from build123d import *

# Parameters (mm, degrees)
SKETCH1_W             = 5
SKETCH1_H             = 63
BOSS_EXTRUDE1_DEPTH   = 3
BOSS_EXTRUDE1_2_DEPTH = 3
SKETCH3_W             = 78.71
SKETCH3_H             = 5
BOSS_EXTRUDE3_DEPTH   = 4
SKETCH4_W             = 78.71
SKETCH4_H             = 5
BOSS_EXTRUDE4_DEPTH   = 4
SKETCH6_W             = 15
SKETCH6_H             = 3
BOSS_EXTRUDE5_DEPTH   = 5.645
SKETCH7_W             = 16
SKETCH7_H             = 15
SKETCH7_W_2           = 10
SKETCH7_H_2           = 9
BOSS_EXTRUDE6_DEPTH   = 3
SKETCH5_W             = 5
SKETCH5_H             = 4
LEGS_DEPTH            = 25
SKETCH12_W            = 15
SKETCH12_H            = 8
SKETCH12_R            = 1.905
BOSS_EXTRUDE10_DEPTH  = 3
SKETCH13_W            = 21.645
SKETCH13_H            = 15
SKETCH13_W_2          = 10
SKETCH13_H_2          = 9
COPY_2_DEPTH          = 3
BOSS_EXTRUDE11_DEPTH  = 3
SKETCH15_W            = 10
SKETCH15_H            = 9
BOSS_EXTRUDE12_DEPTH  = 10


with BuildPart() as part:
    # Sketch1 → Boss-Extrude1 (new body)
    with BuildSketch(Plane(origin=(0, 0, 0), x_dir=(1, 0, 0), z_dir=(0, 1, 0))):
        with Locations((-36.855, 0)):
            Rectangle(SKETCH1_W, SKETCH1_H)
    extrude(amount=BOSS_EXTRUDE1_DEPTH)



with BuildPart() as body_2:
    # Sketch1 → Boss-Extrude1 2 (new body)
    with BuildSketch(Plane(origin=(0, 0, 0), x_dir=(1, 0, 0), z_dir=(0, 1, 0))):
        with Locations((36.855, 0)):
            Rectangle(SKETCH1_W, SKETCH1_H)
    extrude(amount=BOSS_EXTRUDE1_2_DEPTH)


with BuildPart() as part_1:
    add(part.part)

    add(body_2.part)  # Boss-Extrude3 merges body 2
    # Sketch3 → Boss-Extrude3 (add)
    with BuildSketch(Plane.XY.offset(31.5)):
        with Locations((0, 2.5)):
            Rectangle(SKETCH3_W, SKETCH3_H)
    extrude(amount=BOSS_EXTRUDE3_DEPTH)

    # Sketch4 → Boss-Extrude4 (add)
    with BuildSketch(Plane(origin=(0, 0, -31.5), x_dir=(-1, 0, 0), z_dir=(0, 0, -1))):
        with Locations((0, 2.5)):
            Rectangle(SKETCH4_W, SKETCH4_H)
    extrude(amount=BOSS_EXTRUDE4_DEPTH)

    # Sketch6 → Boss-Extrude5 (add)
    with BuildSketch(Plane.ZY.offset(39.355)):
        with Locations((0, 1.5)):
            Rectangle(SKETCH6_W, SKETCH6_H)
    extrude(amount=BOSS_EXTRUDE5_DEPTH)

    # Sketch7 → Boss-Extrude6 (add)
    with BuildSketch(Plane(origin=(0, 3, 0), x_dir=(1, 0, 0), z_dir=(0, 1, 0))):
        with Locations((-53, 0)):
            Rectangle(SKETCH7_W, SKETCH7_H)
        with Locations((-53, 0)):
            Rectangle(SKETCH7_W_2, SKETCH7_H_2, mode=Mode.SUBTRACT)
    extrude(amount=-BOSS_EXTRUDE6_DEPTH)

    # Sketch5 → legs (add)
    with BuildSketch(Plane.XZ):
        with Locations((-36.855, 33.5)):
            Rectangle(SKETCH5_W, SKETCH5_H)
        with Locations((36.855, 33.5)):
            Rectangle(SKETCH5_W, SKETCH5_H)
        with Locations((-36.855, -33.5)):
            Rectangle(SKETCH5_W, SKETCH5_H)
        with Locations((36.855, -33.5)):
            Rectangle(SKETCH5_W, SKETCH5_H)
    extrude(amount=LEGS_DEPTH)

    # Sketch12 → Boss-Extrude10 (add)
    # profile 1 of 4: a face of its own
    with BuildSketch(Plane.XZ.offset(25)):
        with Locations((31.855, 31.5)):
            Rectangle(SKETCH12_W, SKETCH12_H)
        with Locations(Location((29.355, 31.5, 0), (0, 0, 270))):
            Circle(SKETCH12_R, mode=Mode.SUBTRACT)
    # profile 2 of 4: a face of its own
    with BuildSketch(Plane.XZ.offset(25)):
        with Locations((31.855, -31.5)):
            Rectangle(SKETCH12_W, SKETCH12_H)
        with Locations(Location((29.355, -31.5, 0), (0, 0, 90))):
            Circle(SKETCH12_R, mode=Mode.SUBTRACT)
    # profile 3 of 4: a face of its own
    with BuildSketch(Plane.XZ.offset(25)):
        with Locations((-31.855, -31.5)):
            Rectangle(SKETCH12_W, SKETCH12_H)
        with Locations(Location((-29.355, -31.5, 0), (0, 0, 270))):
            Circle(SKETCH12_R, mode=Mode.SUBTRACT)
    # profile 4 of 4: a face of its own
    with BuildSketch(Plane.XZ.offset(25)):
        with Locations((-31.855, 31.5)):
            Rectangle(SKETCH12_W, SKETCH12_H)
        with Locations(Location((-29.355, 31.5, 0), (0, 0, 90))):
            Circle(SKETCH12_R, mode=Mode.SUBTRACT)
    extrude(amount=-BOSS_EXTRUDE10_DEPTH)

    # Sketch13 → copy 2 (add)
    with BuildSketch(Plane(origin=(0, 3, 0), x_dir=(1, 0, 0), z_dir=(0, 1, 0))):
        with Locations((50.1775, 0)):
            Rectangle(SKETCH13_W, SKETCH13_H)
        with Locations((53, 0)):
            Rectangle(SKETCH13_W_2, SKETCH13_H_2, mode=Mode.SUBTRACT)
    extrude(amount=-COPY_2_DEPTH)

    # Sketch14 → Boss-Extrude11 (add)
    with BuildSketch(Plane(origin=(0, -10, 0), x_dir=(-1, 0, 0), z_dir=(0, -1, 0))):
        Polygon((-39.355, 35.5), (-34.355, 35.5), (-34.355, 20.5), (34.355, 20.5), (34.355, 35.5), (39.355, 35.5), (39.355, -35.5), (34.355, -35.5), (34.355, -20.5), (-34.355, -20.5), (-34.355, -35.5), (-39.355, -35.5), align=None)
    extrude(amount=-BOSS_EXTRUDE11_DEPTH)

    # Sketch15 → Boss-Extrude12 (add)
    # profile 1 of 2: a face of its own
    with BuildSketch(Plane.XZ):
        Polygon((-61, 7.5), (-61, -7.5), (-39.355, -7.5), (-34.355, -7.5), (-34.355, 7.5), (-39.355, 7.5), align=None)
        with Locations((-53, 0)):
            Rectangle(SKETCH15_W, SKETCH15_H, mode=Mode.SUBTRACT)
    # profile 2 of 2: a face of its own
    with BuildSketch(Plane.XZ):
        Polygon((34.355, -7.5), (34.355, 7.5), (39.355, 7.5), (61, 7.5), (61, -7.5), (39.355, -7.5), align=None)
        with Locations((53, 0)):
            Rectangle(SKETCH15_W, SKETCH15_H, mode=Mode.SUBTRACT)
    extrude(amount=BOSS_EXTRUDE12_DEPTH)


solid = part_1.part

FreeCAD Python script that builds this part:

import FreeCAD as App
import Part
import Sketcher
Q = App.Units.Quantity


def add_polygon(sketch, points):
    """Adds a closed chain of lines whose ends are joined by coincident constraints."""
    first, n = sketch.GeometryCount, len(points)
    for a, b in zip(points, points[1:] + points[:1]):
        sketch.addGeometry(Part.LineSegment(App.Vector(*a, 0), App.Vector(*b, 0)), False)
    for i in range(n):
        sketch.addConstraint(Sketcher.Constraint("Coincident", first + i, 2, first + (i + 1) % n, 1))

doc = App.newDocument("Part")
params = doc.addObject("Spreadsheet::Sheet", "Params")
for row, (alias, value) in enumerate([
    ("sketch1_width", "5 mm"),
    ("sketch1_height", "63 mm"),
    ("pad1_length", "3 mm"),
    ("sketch2_width", "5 mm"),
    ("sketch2_height", "63 mm"),
    ("pad2_length", "3 mm"),
    ("sketch3_height", "5 mm"),
    ("sketch3_width", "78.71 mm"),
    ("pad3_length", "4 mm"),
    ("sketch4_height", "5 mm"),
    ("sketch4_width", "78.71 mm"),
    ("pad4_length", "4 mm"),
    ("sketch5_width", "3 mm"),
    ("sketch5_height", "15 mm"),
    ("pad5_length", "5.645 mm"),
    ("sketch6_width", "16 mm"),
    ("sketch6_width2", "10 mm"),
    ("sketch6_height", "15 mm"),
    ("sketch6_height2", "9 mm"),
    ("pad6_length", "3 mm"),
    ("sketch7_width", "5 mm"),
    ("sketch7_height", "4 mm"),
    ("pad7_length", "25 mm"),
    ("sketch8_diameter", "3.81 mm"),
    ("sketch8_width", "15 mm"),
    ("sketch8_height", "8 mm"),
    ("pad8_length", "3 mm"),
    ("sketch9_width", "10 mm"),
    ("sketch9_height", "15 mm"),
    ("sketch9_height2", "9 mm"),
    ("pad9_length", "3 mm"),
    ("sketch10_width", "5 mm"),
    ("sketch10_height", "71 mm"),
    ("sketch10_height2", "15 mm"),
    ("sketch10_width2", "68.71 mm"),
    ("pad10_length", "3 mm"),
    ("sketch11_width", "10 mm"),
    ("sketch11_height", "15 mm"),
    ("sketch11_height2", "9 mm"),
    ("pad11_length", "10 mm"),
], start=1):
    params.set(f"A{row}", alias)
    params.set(f"B{row}", "=" + value)
    params.setAlias(f"B{row}", alias)

body = doc.addObject("PartDesign::Body", "Body")

# Sketch on XZ plane
sketch1 = body.newObject("Sketcher::SketchObject", "Sketch")
sketch1.AttachmentSupport = (doc.getObject("XZ_Plane"), [""])
sketch1.MapMode = "FlatFace"
add_polygon(sketch1, [(-39, -32), (-39, 32), (-34, 32), (-34, -32)])  # lines 0-3
sketch1.addConstraint([
    Sketcher.Constraint("Vertical", 0),
    Sketcher.Constraint("Horizontal", 1),
    Sketcher.Constraint("Vertical", 2),
    Sketcher.Constraint("Horizontal", 3),
    Sketcher.Constraint("DistanceX", 1, 1, 1, 2, Q("5 mm")),
    Sketcher.Constraint("DistanceY", 0, 1, 0, 2, Q("63 mm")),
    Sketcher.Constraint("DistanceY", -1, 1, 0, 2, Q("31.5 mm")),
    Sketcher.Constraint("DistanceX", 0, 2, -1, 1, Q("39.355 mm")),
])
sketch1.setExpression("Constraints[8]", "Params.sketch1_width")
sketch1.setExpression("Constraints[9]", "Params.sketch1_height")
pad1 = body.newObject("PartDesign::Pad", "Pad")
pad1.Profile = sketch1
pad1.setExpression("Length", "Params.pad1_length")
pad1.Reversed = True
body2 = doc.addObject("PartDesign::Body", "Body001")

# Sketch on XZ plane
sketch2 = body2.newObject("Sketcher::SketchObject", "Sketch001")
sketch2.AttachmentSupport = (doc.getObject("XZ_Plane001"), [""])
sketch2.MapMode = "FlatFace"
add_polygon(sketch2, [(34, -32), (34, 32), (39, 32), (39, -32)])  # lines 0-3
sketch2.addConstraint([
    Sketcher.Constraint("Vertical", 0),
    Sketcher.Constraint("Horizontal", 1),
    Sketcher.Constraint("Vertical", 2),
    Sketcher.Constraint("Horizontal", 3),
    Sketcher.Constraint("DistanceX", 1, 1, 1, 2, Q("5 mm")),
    Sketcher.Constraint("DistanceY", 0, 1, 0, 2, Q("63 mm")),
    Sketcher.Constraint("DistanceY", -1, 1, 0, 2, Q("31.5 mm")),
    Sketcher.Constraint("DistanceX", -1, 1, 0, 2, Q("34.355 mm")),
])
sketch2.setExpression("Constraints[8]", "Params.sketch2_width")
sketch2.setExpression("Constraints[9]", "Params.sketch2_height")
pad2 = body2.newObject("PartDesign::Pad", "Pad001")
pad2.Profile = sketch2
pad2.setExpression("Length", "Params.pad2_length")
pad2.Reversed = True
body.AllowCompound = True
doc.recompute()

boolean = body.newObject("PartDesign::Boolean", "Boolean")
boolean.Type = "Fuse"
boolean.addObjects([body2])

# Sketch on XY plane
sketch3 = body.newObject("Sketcher::SketchObject", "Sketch002")
sketch3.AttachmentSupport = (doc.getObject("XY_Plane"), [""])
sketch3.MapMode = "FlatFace"
sketch3.AttachmentOffset = App.Placement(App.Vector(0, 0, 31.5), App.Rotation())
add_polygon(sketch3, [(-39, 5), (-39, 0), (39, 0), (39, 5)])  # lines 0-3
sketch3.addConstraint([
    Sketcher.Constraint("Vertical", 0),
    Sketcher.Constraint("Horizontal", 1),
    Sketcher.Constraint("Vertical", 2),
    Sketcher.Constraint("Horizontal", 3),
    Sketcher.Constraint("Symmetric", 0, 2, 1, 2, -1, 1),
    Sketcher.Constraint("DistanceY", 0, 2, 0, 1, Q("5 mm")),
    Sketcher.Constraint("DistanceX", 1, 1, 1, 2, Q("78.71 mm")),
])
sketch3.setExpression("Constraints[9]", "Params.sketch3_height")
sketch3.setExpression("Constraints[10]", "Params.sketch3_width")
pad3 = body.newObject("PartDesign::Pad", "Pad002")
pad3.Profile = sketch3
pad3.setExpression("Length", "Params.pad3_length")

# Sketch on XY plane
sketch4 = body.newObject("Sketcher::SketchObject", "Sketch003")
sketch4.AttachmentSupport = (doc.getObject("XY_Plane"), [""])
sketch4.MapMode = "FlatFace"
sketch4.AttachmentOffset = App.Placement(App.Vector(0, 0, -31.5), App.Rotation())
add_polygon(sketch4, [(39, 5), (39, 0), (-39, 0), (-39, 5)])  # lines 0-3
sketch4.addConstraint([
    Sketcher.Constraint("Vertical", 0),
    Sketcher.Constraint("Horizontal", 1),
    Sketcher.Constraint("Vertical", 2),
    Sketcher.Constraint("Horizontal", 3),
    Sketcher.Constraint("Symmetric", 0, 2, 1, 2, -1, 1),
    Sketcher.Constraint("DistanceY", 0, 2, 0, 1, Q("5 mm")),
    Sketcher.Constraint("DistanceX", 1, 2, 1, 1, Q("78.71 mm")),
])
sketch4.setExpression("Constraints[9]", "Params.sketch4_height")
sketch4.setExpression("Constraints[10]", "Params.sketch4_width")
pad4 = body.newObject("PartDesign::Pad", "Pad003")
pad4.Profile = sketch4
pad4.setExpression("Length", "Params.pad4_length")
pad4.Reversed = True

# Sketch on YZ plane
sketch5 = body.newObject("Sketcher::SketchObject", "Sketch004")
sketch5.AttachmentSupport = (doc.getObject("YZ_Plane"), [""])
sketch5.MapMode = "FlatFace"
sketch5.AttachmentOffset = App.Placement(App.Vector(0, 0, -39.355), App.Rotation())
add_polygon(sketch5, [(3, -7.5), (0, -7.5), (0, 7.5), (3, 7.5)])  # lines 0-3
sketch5.addConstraint([
    Sketcher.Constraint("Horizontal", 0),
    Sketcher.Constraint("Vertical", 1),
    Sketcher.Constraint("Horizontal", 2),
    Sketcher.Constraint("Vertical", 3),
    Sketcher.Constraint("Symmetric", 0, 2, 1, 2, -1, 1),
    Sketcher.Constraint("DistanceX", 0, 2, 0, 1, Q("3 mm")),
    Sketcher.Constraint("DistanceY", 1, 1, 1, 2, Q("15 mm")),
])
sketch5.setExpression("Constraints[9]", "Params.sketch5_width")
sketch5.setExpression("Constraints[10]", "Params.sketch5_height")
pad5 = body.newObject("PartDesign::Pad", "Pad004")
pad5.Profile = sketch5
pad5.setExpression("Length", "Params.pad5_length")
pad5.Reversed = True

# Sketch on XZ plane
sketch6 = body.newObject("Sketcher::SketchObject", "Sketch005")
sketch6.AttachmentSupport = (doc.getObject("XZ_Plane"), [""])
sketch6.MapMode = "FlatFace"
sketch6.AttachmentOffset = App.Placement(App.Vector(0, 0, -3), App.Rotation())
add_polygon(sketch6, [(-61, -8), (-61, 8), (-45, 8), (-45, -8)])  # lines 0-3
add_polygon(sketch6, [(-48, 4), (-58, 4), (-58, -4), (-48, -4)])  # lines 4-7
sketch6.addConstraint([
    Sketcher.Constraint("Vertical", 0),
    Sketcher.Constraint("Horizontal", 1),
    Sketcher.Constraint("Vertical", 2),
    Sketcher.Constraint("Horizontal", 3),
    Sketcher.Constraint("Horizontal", 4),
    Sketcher.Constraint("Vertical", 5),
    Sketcher.Constraint("Horizontal", 6),
    Sketcher.Constraint("Vertical", 7),
    Sketcher.Constraint("DistanceX", 1, 1, 1, 2, Q("16 mm")),
    Sketcher.Constraint("DistanceX", 4, 2, 4, 1, Q("10 mm")),
    Sketcher.Constraint("DistanceY", 0, 1, 0, 2, Q("15 mm")),
    Sketcher.Constraint("DistanceY", 5, 2, 5, 1, Q("9 mm")),
    Sketcher.Constraint("DistanceX", 0, 2, -1, 1, Q("61 mm")),
    Sketcher.Constraint("DistanceX", 4, 2, -1, 1, Q("58 mm")),
    Sketcher.Constraint("DistanceY", 4, 2, 0, 2, Q("3 mm")),
    Sketcher.Constraint("DistanceY", -1, 1, 0, 2, Q("7.5 mm")),
])
sketch6.setExpression("Constraints[16]", "Params.sketch6_width")
sketch6.setExpression("Constraints[17]", "Params.sketch6_width2")
sketch6.setExpression("Constraints[18]", "Params.sketch6_height")
sketch6.setExpression("Constraints[19]", "Params.sketch6_height2")
pad6 = body.newObject("PartDesign::Pad", "Pad005")
pad6.Profile = sketch6
pad6.setExpression("Length", "Params.pad6_length")

# Sketch on XZ plane
sketch7 = body.newObject("Sketcher::SketchObject", "Sketch006")
sketch7.AttachmentSupport = (doc.getObject("XZ_Plane"), [""])
sketch7.MapMode = "FlatFace"
add_polygon(sketch7, [(-39.4, 35.5), (-39.4, 31.5), (-34.4, 31.5), (-34.4, 35.5)])  # lines 0-3
add_polygon(sketch7, [(34.4, 35.5), (34.4, 31.5), (39.4, 31.5), (39.4, 35.5)])  # lines 4-7
add_polygon(sketch7, [(-39.4, -31.5), (-39.4, -35.5), (-34.4, -35.5), (-34.4, -31.5)])  # lines 8-11
add_polygon(sketch7, [(34.4, -31.5), (34.4, -35.5), (39.4, -35.5), (39.4, -31.5)])  # lines 12-15
sketch7.addConstraint([
    Sketcher.Constraint("Vertical", 0),
    Sketcher.Constraint("Horizontal", 1),
    Sketcher.Constraint("Vertical", 2),
    Sketcher.Constraint("Horizontal", 3),
    Sketcher.Constraint("Vertical", 4),
    Sketcher.Constraint("Horizontal", 5),
    Sketcher.Constraint("Vertical", 6),
    Sketcher.Constraint("Horizontal", 7),
    Sketcher.Constraint("Vertical", 8),
    Sketcher.Constraint("Horizontal", 9),
    Sketcher.Constraint("Vertical", 10),
    Sketcher.Constraint("Horizontal", 11),
    Sketcher.Constraint("Vertical", 12),
    Sketcher.Constraint("Horizontal", 13),
    Sketcher.Constraint("Vertical", 14),
    Sketcher.Constraint("Horizontal", 15),
    Sketcher.Constraint("Symmetric", 6, 2, 8, 2, -1, 1),
    Sketcher.Constraint("Symmetric", 4, 2, 10, 2, -1, 1),
    Sketcher.Constraint("Symmetric", 2, 2, 12, 2, -1, 1),
    Sketcher.Constraint("Symmetric", 0, 2, 14, 2, -1, 1),
    Sketcher.Constraint("Symmetric", 1, 2, 4, 2, -2),
    Sketcher.Constraint("Symmetric", 3, 2, 6, 2, -2),
    Sketcher.Constraint("DistanceX", 1, 1, 1, 2, Q("5 mm")),
    Sketcher.Constraint("DistanceY", 0, 2, 0, 1, Q("4 mm")),
    Sketcher.Constraint("DistanceY", 8, 2, 0, 2, Q("67 mm")),
    Sketcher.Constraint("DistanceX", 1, 2, 4, 2, Q("68.71 mm")),
])
sketch7.setExpression("Constraints[38]", "Params.sketch7_width")
sketch7.setExpression("Constraints[39]", "Params.sketch7_height")
pad7 = body.newObject("PartDesign::Pad", "Pad006")
pad7.Profile = sketch7
pad7.setExpression("Length", "Params.pad7_length")

# Sketch on XZ plane
sketch8 = body.newObject("Sketcher::SketchObject", "Sketch007")
sketch8.AttachmentSupport = (doc.getObject("XZ_Plane"), [""])
sketch8.MapMode = "FlatFace"
sketch8.AttachmentOffset = App.Placement(App.Vector(0, 0, 25), App.Rotation())
add_polygon(sketch8, [(24.4, 35.5), (24.4, 27.5), (39.4, 27.5), (39.4, 35.5)])  # lines 0-3
sketch8.addGeometry(Part.Circle(App.Vector(29.4, 31.5, 0), App.Vector(0, 0, 1), 1.9), False)  # 4
add_polygon(sketch8, [(24.4, -27.5), (24.4, -35.5), (39.4, -35.5), (39.4, -27.5)])  # lines 5-8
sketch8.addGeometry(Part.Circle(App.Vector(29.4, -31.5, 0), App.Vector(0, 0, 1), 1.9), False)  # 9
add_polygon(sketch8, [(-39.4, -27.5), (-39.4, -35.5), (-24.4, -35.5), (-24.4, -27.5)])  # lines 10-13
sketch8.addGeometry(Part.Circle(App.Vector(-29.4, -31.5, 0), App.Vector(0, 0, 1), 1.9), False)  # 14
add_polygon(sketch8, [(-39.4, 35.5), (-39.4, 27.5), (-24.4, 27.5), (-24.4, 35.5)])  # lines 15-18
sketch8.addGeometry(Part.Circle(App.Vector(-29.4, 31.5, 0), App.Vector(0, 0, 1), 1.9), False)  # 19
sketch8.addConstraint([
    Sketcher.Constraint("Vertical", 0),
    Sketcher.Constraint("Horizontal", 1),
    Sketcher.Constraint("Vertical", 2),
    Sketcher.Constraint("Horizontal", 3),
    Sketcher.Constraint("Vertical", 5),
    Sketcher.Constraint("Horizontal", 6),
    Sketcher.Constraint("Vertical", 7),
    Sketcher.Constraint("Horizontal", 8),
    Sketcher.Constraint("Vertical", 10),
    Sketcher.Constraint("Horizontal", 11),
    Sketcher.Constraint("Vertical", 12),
    Sketcher.Constraint("Horizontal", 13),
    Sketcher.Constraint("Vertical", 15),
    Sketcher.Constraint("Horizontal", 16),
    Sketcher.Constraint("Vertical", 17),
    Sketcher.Constraint("Horizontal", 18),
    Sketcher.Constraint("Equal", 4, 9),
    Sketcher.Constraint("Equal", 9, 14),
    Sketcher.Constraint("Equal", 14, 19),
    Sketcher.Constraint("Symmetric", 4, 3, 14, 3, -1, 1),
    Sketcher.Constraint("Symmetric", 9, 3, 19, 3, -1, 1),
    Sketcher.Constraint("Symmetric", 2, 2, 10, 2, -1, 1),
    Sketcher.Constraint("Symmetric", 0, 2, 12, 2, -1, 1),
    Sketcher.Constraint("Symmetric", 7, 2, 15, 2, -1, 1),
    Sketcher.Constraint("Symmetric", 5, 2, 17, 2, -1, 1),
    Sketcher.Constraint("Symmetric", 9, 3, 14, 3, -2),
    Sketcher.Constraint("Symmetric", 6, 2, 10, 2, -2),
    Sketcher.Constraint("Symmetric", 8, 2, 12, 2, -2),
    Sketcher.Constraint("Diameter", 4, Q("3.81 mm")),
    Sketcher.Constraint("DistanceX", 1, 1, 1, 2, Q("15 mm")),
    Sketcher.Constraint("DistanceY", 0, 2, 0, 1, Q("8 mm")),
    Sketcher.Constraint("DistanceY", 9, 3, 4, 3, Q("63 mm")),
    Sketcher.Constraint("DistanceX", 0, 2, 4, 3, Q("5 mm")),
    Sketcher.Constraint("DistanceY", 0, 2, 4, 3, Q("4 mm")),
    Sketcher.Constraint("DistanceX", 14, 3, 9, 3, Q("58.71 mm")),
])
sketch8.setExpression("Constraints[44]", "Params.sketch8_diameter")
sketch8.setExpression("Constraints[45]", "Params.sketch8_width")
sketch8.setExpression("Constraints[46]", "Params.sketch8_height")
pad8 = body.newObject("PartDesign::Pad", "Pad007")
pad8.Profile = sketch8
pad8.setExpression("Length", "Params.pad8_length")
pad8.Reversed = True

# Sketch on XZ plane
sketch9 = body.newObject("Sketcher::SketchObject", "Sketch008")
sketch9.AttachmentSupport = (doc.getObject("XZ_Plane"), [""])
sketch9.MapMode = "FlatFace"
sketch9.AttachmentOffset = App.Placement(App.Vector(0, 0, -3), App.Rotation())
add_polygon(sketch9, [(39, -8), (39, 8), (61, 8), (61, -8)])  # lines 0-3
add_polygon(sketch9, [(58, 4), (48, 4), (48, -4), (58, -4)])  # lines 4-7
sketch9.addConstraint([
    Sketcher.Constraint("Vertical", 0),
    Sketcher.Constraint("Horizontal", 1),
    Sketcher.Constraint("Vertical", 2),
    Sketcher.Constraint("Horizontal", 3),
    Sketcher.Constraint("Horizontal", 4),
    Sketcher.Constraint("Vertical", 5),
    Sketcher.Constraint("Horizontal", 6),
    Sketcher.Constraint("Vertical", 7),
    Sketcher.Constraint("DistanceX", 4, 2, 4, 1, Q("10 mm")),
    Sketcher.Constraint("DistanceY", 0, 1, 0, 2, Q("15 mm")),
    Sketcher.Constraint("DistanceY", 5, 2, 5, 1, Q("9 mm")),
    Sketcher.Constraint("DistanceX", -1, 1, 1, 2, Q("61 mm")),
    Sketcher.Constraint("DistanceX", -1, 1, 4, 2, Q("48 mm")),
    Sketcher.Constraint("DistanceY", 4, 2, 0, 2, Q("3 mm")),
    Sketcher.Constraint("DistanceY", -1, 1, 0, 2, Q("7.5 mm")),
    Sketcher.Constraint("DistanceX", 1, 1, 1, 2, Q("21.645 mm")),
])
sketch9.setExpression("Constraints[16]", "Params.sketch9_width")
sketch9.setExpression("Constraints[17]", "Params.sketch9_height")
sketch9.setExpression("Constraints[18]", "Params.sketch9_height2")
pad9 = body.newObject("PartDesign::Pad", "Pad008")
pad9.Profile = sketch9
pad9.setExpression("Length", "Params.pad9_length")

# Sketch on XZ plane
sketch10 = body.newObject("Sketcher::SketchObject", "Sketch009")
sketch10.AttachmentSupport = (doc.getObject("XZ_Plane"), [""])
sketch10.MapMode = "FlatFace"
sketch10.AttachmentOffset = App.Placement(App.Vector(0, 0, 10), App.Rotation())
add_polygon(sketch10, [(34, -36), (39, -36), (39, 36), (34, 36), (34, 20), (-34, 20), (-34, 36), (-39, 36), (-39, -36), (-34, -36), (-34, -20), (34, -20)])  # lines 0-11
sketch10.addConstraint([
    Sketcher.Constraint("Horizontal", 0),
    Sketcher.Constraint("Vertical", 1),
    Sketcher.Constraint("Horizontal", 2),
    Sketcher.Constraint("Vertical", 3),
    Sketcher.Constraint("Horizontal", 4),
    Sketcher.Constraint("Vertical", 5),
    Sketcher.Constraint("Horizontal", 6),
    Sketcher.Constraint("Vertical", 7),
    Sketcher.Constraint("Horizontal", 8),
    Sketcher.Constraint("Vertical", 9),
    Sketcher.Constraint("Horizontal", 10),
    Sketcher.Constraint("Vertical", 11),
    Sketcher.Constraint("Symmetric", 0, 2, 6, 2, -1, 1),
    Sketcher.Constraint("Symmetric", 2, 2, 8, 2, -1, 1),
    Sketcher.Constraint("Symmetric", 4, 2, 10, 2, -1, 1),
    Sketcher.Constraint("Symmetric", 2, 2, 5, 2, -2),
    Sketcher.Constraint("DistanceX", 0, 1, 0, 2, Q("5 mm")),
    Sketcher.Constraint("DistanceY", 1, 1, 1, 2, Q("71 mm")),
    Sketcher.Constraint("DistanceY", 3, 2, 3, 1, Q("15 mm")),
    Sketcher.Constraint("DistanceX", 4, 2, 4, 1, Q("68.71 mm")),
])
sketch10.setExpression("Constraints[28]", "Params.sketch10_width")
sketch10.setExpression("Constraints[29]", "Params.sketch10_height")
sketch10.setExpression("Constraints[30]", "Params.sketch10_height2")
sketch10.setExpression("Constraints[31]", "Params.sketch10_width2")
pad10 = body.newObject("PartDesign::Pad", "Pad009")
pad10.Profile = sketch10
pad10.setExpression("Length", "Params.pad10_length")
pad10.Reversed = True

# Sketch on XZ plane
sketch11 = body.newObject("Sketcher::SketchObject", "Sketch010")
sketch11.AttachmentSupport = (doc.getObject("XZ_Plane"), [""])
sketch11.MapMode = "FlatFace"
add_polygon(sketch11, [(-61, 8), (-61, -8), (-34, -8), (-34, 8)])  # lines 0-3
add_polygon(sketch11, [(-48, -4), (-58, -4), (-58, 4), (-48, 4)])  # lines 4-7
add_polygon(sketch11, [(34, 8), (34, -8), (61, -8), (61, 8)])  # lines 8-11
add_polygon(sketch11, [(48, -4), (48, 4), (58, 4), (58, -4)])  # lines 12-15
sketch11.addConstraint([
    Sketcher.Constraint("Vertical", 0),
    Sketcher.Constraint("Horizontal", 1),
    Sketcher.Constraint("Vertical", 2),
    Sketcher.Constraint("Horizontal", 3),
    Sketcher.Constraint("Horizontal", 4),
    Sketcher.Constraint("Vertical", 5),
    Sketcher.Constraint("Horizontal", 6),
    Sketcher.Constraint("Vertical", 7),
    Sketcher.Constraint("Vertical", 8),
    Sketcher.Constraint("Horizontal", 9),
    Sketcher.Constraint("Vertical", 10),
    Sketcher.Constraint("Horizontal", 11),
    Sketcher.Constraint("Vertical", 12),
    Sketcher.Constraint("Horizontal", 13),
    Sketcher.Constraint("Vertical", 14),
    Sketcher.Constraint("Horizontal", 15),
    Sketcher.Constraint("Symmetric", 2, 2, 8, 2, -1, 1),
    Sketcher.Constraint("Symmetric", 0, 2, 10, 2, -1, 1),
    Sketcher.Constraint("Symmetric", 7, 2, 12, 2, -1, 1),
    Sketcher.Constraint("Symmetric", 5, 2, 14, 2, -1, 1),
    Sketcher.Constraint("Horizontal", 1, 2, 8, 2),
    Sketcher.Constraint("Horizontal", 6, 2, 12, 2),
    Sketcher.Constraint("DistanceX", 4, 2, 4, 1, Q("10 mm")),
    Sketcher.Constraint("DistanceY", 0, 2, 0, 1, Q("15 mm")),
    Sketcher.Constraint("DistanceY", 5, 1, 5, 2, Q("9 mm")),
    Sketcher.Constraint("DistanceX", 0, 2, -1, 1, Q("61 mm")),
    Sketcher.Constraint("DistanceX", 4, 2, -1, 1, Q("58 mm")),
    Sketcher.Constraint("DistanceX", 1, 1, 1, 2, Q("26.645 mm")),
])
sketch11.setExpression("Constraints[38]", "Params.sketch11_width")
sketch11.setExpression("Constraints[39]", "Params.sketch11_height")
sketch11.setExpression("Constraints[40]", "Params.sketch11_height2")
pad11 = body.newObject("PartDesign::Pad", "Pad010")
pad11.Profile = sketch11
pad11.setExpression("Length", "Params.pad11_length")

doc.recompute()
